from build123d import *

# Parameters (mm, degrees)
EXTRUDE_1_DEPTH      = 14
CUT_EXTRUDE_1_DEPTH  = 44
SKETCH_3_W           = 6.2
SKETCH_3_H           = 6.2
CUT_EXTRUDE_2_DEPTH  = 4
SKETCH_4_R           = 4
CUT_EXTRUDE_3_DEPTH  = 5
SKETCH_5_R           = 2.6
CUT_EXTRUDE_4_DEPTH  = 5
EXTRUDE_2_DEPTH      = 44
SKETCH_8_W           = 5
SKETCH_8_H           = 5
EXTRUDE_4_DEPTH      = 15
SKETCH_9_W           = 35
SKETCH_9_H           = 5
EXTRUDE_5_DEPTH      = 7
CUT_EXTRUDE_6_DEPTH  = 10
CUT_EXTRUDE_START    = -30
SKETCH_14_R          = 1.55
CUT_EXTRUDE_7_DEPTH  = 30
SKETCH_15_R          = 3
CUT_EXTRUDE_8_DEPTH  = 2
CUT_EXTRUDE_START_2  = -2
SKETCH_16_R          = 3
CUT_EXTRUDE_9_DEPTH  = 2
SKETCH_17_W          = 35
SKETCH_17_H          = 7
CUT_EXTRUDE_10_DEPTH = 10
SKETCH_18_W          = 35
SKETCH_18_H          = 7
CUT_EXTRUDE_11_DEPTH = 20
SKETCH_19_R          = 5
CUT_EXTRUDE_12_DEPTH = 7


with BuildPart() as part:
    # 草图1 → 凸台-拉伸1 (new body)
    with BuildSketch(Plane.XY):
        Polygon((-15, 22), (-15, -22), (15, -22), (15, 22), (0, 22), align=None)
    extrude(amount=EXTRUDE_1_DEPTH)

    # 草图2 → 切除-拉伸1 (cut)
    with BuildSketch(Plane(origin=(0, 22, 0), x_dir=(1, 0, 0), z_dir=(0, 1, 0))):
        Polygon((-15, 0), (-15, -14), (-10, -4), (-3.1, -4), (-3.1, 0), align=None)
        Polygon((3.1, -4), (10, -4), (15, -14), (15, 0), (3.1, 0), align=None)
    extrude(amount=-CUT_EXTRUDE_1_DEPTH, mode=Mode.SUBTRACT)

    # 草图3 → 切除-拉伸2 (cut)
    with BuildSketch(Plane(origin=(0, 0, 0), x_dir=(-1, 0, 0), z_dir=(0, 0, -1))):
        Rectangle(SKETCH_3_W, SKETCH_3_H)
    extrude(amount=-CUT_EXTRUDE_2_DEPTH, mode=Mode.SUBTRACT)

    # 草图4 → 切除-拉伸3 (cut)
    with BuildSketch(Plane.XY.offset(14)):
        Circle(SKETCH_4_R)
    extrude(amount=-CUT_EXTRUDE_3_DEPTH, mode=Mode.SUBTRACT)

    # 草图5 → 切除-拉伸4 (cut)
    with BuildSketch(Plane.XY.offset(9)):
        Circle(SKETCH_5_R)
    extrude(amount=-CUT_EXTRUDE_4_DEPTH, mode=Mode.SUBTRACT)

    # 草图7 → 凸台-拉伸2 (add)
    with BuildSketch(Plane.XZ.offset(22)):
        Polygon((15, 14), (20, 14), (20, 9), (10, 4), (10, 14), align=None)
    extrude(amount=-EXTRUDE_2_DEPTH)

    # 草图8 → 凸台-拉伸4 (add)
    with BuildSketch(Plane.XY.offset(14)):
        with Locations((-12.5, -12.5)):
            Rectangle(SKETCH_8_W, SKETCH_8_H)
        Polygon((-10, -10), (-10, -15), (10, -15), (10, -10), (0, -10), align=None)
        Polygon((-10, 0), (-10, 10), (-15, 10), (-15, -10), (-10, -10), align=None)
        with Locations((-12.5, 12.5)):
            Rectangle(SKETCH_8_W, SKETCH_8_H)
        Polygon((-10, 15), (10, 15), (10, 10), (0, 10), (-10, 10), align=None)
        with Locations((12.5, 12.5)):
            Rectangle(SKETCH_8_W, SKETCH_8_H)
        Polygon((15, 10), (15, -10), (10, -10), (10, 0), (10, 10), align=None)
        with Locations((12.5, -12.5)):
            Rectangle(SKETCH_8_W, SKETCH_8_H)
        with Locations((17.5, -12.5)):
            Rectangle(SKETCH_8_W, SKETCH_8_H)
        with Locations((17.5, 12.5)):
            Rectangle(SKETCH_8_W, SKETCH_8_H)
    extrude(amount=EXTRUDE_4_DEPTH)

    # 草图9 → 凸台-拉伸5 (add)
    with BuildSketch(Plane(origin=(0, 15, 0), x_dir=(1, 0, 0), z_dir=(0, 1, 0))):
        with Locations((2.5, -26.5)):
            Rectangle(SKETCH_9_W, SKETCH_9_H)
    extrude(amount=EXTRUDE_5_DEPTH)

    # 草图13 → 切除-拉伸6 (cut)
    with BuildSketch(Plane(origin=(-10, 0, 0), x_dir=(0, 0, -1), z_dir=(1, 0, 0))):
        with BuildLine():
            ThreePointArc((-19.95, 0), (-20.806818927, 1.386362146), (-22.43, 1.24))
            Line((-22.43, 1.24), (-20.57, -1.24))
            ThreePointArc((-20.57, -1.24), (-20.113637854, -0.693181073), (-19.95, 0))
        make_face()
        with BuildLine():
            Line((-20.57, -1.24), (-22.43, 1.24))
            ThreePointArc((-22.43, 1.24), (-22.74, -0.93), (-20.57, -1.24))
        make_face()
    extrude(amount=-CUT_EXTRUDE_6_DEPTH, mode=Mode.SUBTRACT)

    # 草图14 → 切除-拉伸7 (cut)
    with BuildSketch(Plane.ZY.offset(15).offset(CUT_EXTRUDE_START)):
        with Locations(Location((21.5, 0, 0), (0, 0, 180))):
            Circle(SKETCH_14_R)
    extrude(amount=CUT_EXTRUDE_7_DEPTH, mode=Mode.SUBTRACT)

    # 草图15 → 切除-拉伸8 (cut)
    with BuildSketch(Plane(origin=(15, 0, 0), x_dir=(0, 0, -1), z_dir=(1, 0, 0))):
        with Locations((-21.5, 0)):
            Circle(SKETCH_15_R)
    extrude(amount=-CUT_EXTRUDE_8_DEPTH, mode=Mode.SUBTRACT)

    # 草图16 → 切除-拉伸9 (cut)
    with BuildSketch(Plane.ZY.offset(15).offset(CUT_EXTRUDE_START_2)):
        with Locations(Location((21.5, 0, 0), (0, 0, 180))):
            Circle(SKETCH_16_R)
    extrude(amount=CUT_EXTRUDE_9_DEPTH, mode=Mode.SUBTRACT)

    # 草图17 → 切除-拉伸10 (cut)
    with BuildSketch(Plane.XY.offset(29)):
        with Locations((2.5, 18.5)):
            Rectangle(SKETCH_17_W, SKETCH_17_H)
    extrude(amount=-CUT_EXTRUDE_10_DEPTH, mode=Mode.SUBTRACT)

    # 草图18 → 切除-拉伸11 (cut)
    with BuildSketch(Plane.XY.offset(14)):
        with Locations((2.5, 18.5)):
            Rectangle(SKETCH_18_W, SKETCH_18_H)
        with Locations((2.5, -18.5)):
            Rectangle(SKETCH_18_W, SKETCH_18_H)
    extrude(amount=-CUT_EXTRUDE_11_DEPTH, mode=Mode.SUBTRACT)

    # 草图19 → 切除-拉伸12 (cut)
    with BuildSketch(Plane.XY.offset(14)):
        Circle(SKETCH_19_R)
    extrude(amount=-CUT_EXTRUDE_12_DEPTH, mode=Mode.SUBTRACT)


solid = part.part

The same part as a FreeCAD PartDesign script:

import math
import FreeCAD as App
import Part
import Sketcher
from FreeCAD import Vector

doc = App.newDocument("Part")
body = doc.addObject("PartDesign::Body", "Body")

sketch1 = body.newObject("Sketcher::SketchObject", "Sketch")
sketch1.AttachmentSupport = (doc.getObject("XY_Plane"), [""])
sketch1.MapMode = "FlatFace"
sketch1.addGeometry(Part.LineSegment(Vector(-15, 22, 0), Vector(-15, -22, 0)), False)
sketch1.addGeometry(Part.LineSegment(Vector(-15, -22, 0), Vector(15, -22, 0)), False)
sketch1.addGeometry(Part.LineSegment(Vector(15, -22, 0), Vector(15, 22, 0)), False)
sketch1.addGeometry(Part.LineSegment(Vector(15, 22, 0), Vector(-15, 22, 0)), False)
sketch1.addConstraint(Sketcher.Constraint("Coincident", 0, 2, 1, 1))
sketch1.addConstraint(Sketcher.Constraint("Coincident", 1, 2, 2, 1))
sketch1.addConstraint(Sketcher.Constraint("Coincident", 2, 2, 3, 1))
sketch1.addConstraint(Sketcher.Constraint("Coincident", 3, 2, 0, 1))
sketch1.addConstraint(Sketcher.Constraint("Vertical", 0))
sketch1.addConstraint(Sketcher.Constraint("Horizontal", 1))
sketch1.addConstraint(Sketcher.Constraint("Vertical", 2))
sketch1.addConstraint(Sketcher.Constraint("Horizontal", 3))
sketch1.addConstraint(Sketcher.Constraint("Symmetric", 0, 2, 2, 2, -1, 1))
sketch1.addConstraint(Sketcher.Constraint("DistanceX", 1, 1, 1, 2, 30.0))
sketch1.addConstraint(Sketcher.Constraint("DistanceY", 0, 2, 0, 1, 44.0))
pad1 = body.newObject("PartDesign::Pad", "Pad")
pad1.Profile = sketch1
pad1.Length = 14

sketch2 = body.newObject("Sketcher::SketchObject", "Sketch001")
sketch2.AttachmentSupport = (doc.getObject("XZ_Plane"), [""])
sketch2.MapMode = "FlatFace"
sketch2.AttachmentOffset = App.Placement(Vector(0, 0, -22), App.Rotation())
sketch2.addGeometry(Part.LineSegment(Vector(-15, 0, 0), Vector(-15, 14, 0)), False)
sketch2.addGeometry(Part.LineSegment(Vector(-15, 14, 0), Vector(-10, 4, 0)), False)
sketch2.addGeometry(Part.LineSegment(Vector(-10, 4, 0), Vector(-3.1, 4, 0)), False)
sketch2.addGeometry(Part.LineSegment(Vector(-3.1, 4, 0), Vector(-3.1, 0, 0)), False)
sketch2.addGeometry(Part.LineSegment(Vector(-3.1, 0, 0), Vector(-15, 0, 0)), False)
sketch2.addGeometry(Part.LineSegment(Vector(3.1, 4, 0), Vector(10, 4, 0)), False)
sketch2.addGeometry(Part.LineSegment(Vector(10, 4, 0), Vector(15, 14, 0)), False)
sketch2.addGeometry(Part.LineSegment(Vector(15, 14, 0), Vector(15, 0, 0)), False)
sketch2.addGeometry(Part.LineSegment(Vector(15, 0, 0), Vector(3.1, 0, 0)), False)
sketch2.addGeometry(Part.LineSegment(Vector(3.1, 0, 0), Vector(3.1, 4, 0)), False)
sketch2.addConstraint(Sketcher.Constraint("Coincident", 0, 2, 1, 1))
sketch2.addConstraint(Sketcher.Constraint("Coincident", 1, 2, 2, 1))
sketch2.addConstraint(Sketcher.Constraint("Coincident", 2, 2, 3, 1))
sketch2.addConstraint(Sketcher.Constraint("Coincident", 3, 2, 4, 1))
sketch2.addConstraint(Sketcher.Constraint("Coincident", 4, 2, 0, 1))
sketch2.addConstraint(Sketcher.Constraint("Coincident", 5, 2, 6, 1))
sketch2.addConstraint(Sketcher.Constraint("Coincident", 6, 2, 7, 1))
sketch2.addConstraint(Sketcher.Constraint("Coincident", 7, 2, 8, 1))
sketch2.addConstraint(Sketcher.Constraint("Coincident", 8, 2, 9, 1))
sketch2.addConstraint(Sketcher.Constraint("Coincident", 9, 2, 5, 1))
sketch2.addConstraint(Sketcher.Constraint("Vertical", 0))
sketch2.addConstraint(Sketcher.Constraint("Horizontal", 2))
sketch2.addConstraint(Sketcher.Constraint("Vertical", 3))
sketch2.addConstraint(Sketcher.Constraint("Horizontal", 4))
sketch2.addConstraint(Sketcher.Constraint("Horizontal", 5))
sketch2.addConstraint(Sketcher.Constraint("Vertical", 7))
sketch2.addConstraint(Sketcher.Constraint("Horizontal", 8))
sketch2.addConstraint(Sketcher.Constraint("Vertical", 9))
sketch2.addConstraint(Sketcher.Constraint("Symmetric", 4, 2, 7, 2, -1, 1))
sketch2.addConstraint(Sketcher.Constraint("Symmetric", 1, 2, 5, 2, -2))
sketch2.addConstraint(Sketcher.Constraint("Symmetric", 3, 2, 8, 2, -2))
sketch2.addConstraint(Sketcher.Constraint("Horizontal", 0, 2, 6, 2))
sketch2.addConstraint(Sketcher.Constraint("DistanceY", 0, 1, 0, 2, 14.0))
sketch2.addConstraint(Sketcher.Constraint("DistanceY", 3, 2, 3, 1, 4.0))
sketch2.addConstraint(Sketcher.Constraint("DistanceX", 2, 1, 2, 2, 6.9))
sketch2.addConstraint(Sketcher.Constraint("DistanceX", 4, 2, 4, 1, 11.9))
sketch2.addConstraint(Sketcher.Constraint("DistanceX", 0, 2, -1, 1, 15.0))
pocket1 = body.newObject("PartDesign::Pocket", "Pocket")
pocket1.Profile = sketch2
pocket1.Length = 44
pocket1.Reversed = True

sketch3 = body.newObject("Sketcher::SketchObject", "Sketch002")
sketch3.AttachmentSupport = (doc.getObject("XY_Plane"), [""])
sketch3.MapMode = "FlatFace"
sketch3.addGeometry(Part.LineSegment(Vector(3, 3, 0), Vector(3, -3, 0)), False)
sketch3.addGeometry(Part.LineSegment(Vector(3, -3, 0), Vector(-3, -3, 0)), False)
sketch3.addGeometry(Part.LineSegment(Vector(-3, -3, 0), Vector(-3, 3, 0)), False)
sketch3.addGeometry(Part.LineSegment(Vector(-3, 3, 0), Vector(3, 3, 0)), False)
sketch3.addConstraint(Sketcher.Constraint("Coincident", 0, 2, 1, 1))
sketch3.addConstraint(Sketcher.Constraint("Coincident", 1, 2, 2, 1))
sketch3.addConstraint(Sketcher.Constraint("Coincident", 2, 2, 3, 1))
sketch3.addConstraint(Sketcher.Constraint("Coincident", 3, 2, 0, 1))
sketch3.addConstraint(Sketcher.Constraint("Vertical", 0))
sketch3.addConstraint(Sketcher.Constraint("Horizontal", 1))
sketch3.addConstraint(Sketcher.Constraint("Vertical", 2))
sketch3.addConstraint(Sketcher.Constraint("Horizontal", 3))
sketch3.addConstraint(Sketcher.Constraint("Symmetric", 0, 2, 2, 2, -1, 1))
sketch3.addConstraint(Sketcher.Constraint("Equal", 3, 0))
sketch3.addConstraint(Sketcher.Constraint("DistanceX", 1, 2, 1, 1, 6.2))
pocket2 = body.newObject("PartDesign::Pocket", "Pocket001")
pocket2.Profile = sketch3
pocket2.Length = 4
pocket2.Reversed = True

sketch4 = body.newObject("Sketcher::SketchObject", "Sketch003")
sketch4.AttachmentSupport = (doc.getObject("XY_Plane"), [""])
sketch4.MapMode = "FlatFace"
sketch4.AttachmentOffset = App.Placement(Vector(0, 0, 14), App.Rotation())
sketch4.addGeometry(Part.Circle(Vector(0, 0, 0), Vector(0, 0, 1), 4), False)
sketch4.addConstraint(Sketcher.Constraint("Coincident", 0, 3, -1, 1))
sketch4.addConstraint(Sketcher.Constraint("Diameter", 0, 8.0))
pocket3 = body.newObject("PartDesign::Pocket", "Pocket002")
pocket3.Profile = sketch4
pocket3.Length = 5

sketch5 = body.newObject("Sketcher::SketchObject", "Sketch004")
sketch5.AttachmentSupport = (doc.getObject("XY_Plane"), [""])
sketch5.MapMode = "FlatFace"
sketch5.AttachmentOffset = App.Placement(Vector(0, 0, 9), App.Rotation())
sketch5.addGeometry(Part.Circle(Vector(0, 0, 0), Vector(0, 0, 1), 2.6), False)
sketch5.addConstraint(Sketcher.Constraint("Coincident", 0, 3, -1, 1))
sketch5.addConstraint(Sketcher.Constraint("Diameter", 0, 5.2))
pocket4 = body.newObject("PartDesign::Pocket", "Pocket003")
pocket4.Profile = sketch5
pocket4.Length = 5

sketch6 = body.newObject("Sketcher::SketchObject", "Sketch005")
sketch6.AttachmentSupport = (doc.getObject("XZ_Plane"), [""])
sketch6.MapMode = "FlatFace"
sketch6.AttachmentOffset = App.Placement(Vector(0, 0, 22), App.Rotation())
sketch6.addGeometry(Part.LineSegment(Vector(20, 14, 0), Vector(10, 14, 0)), False)
sketch6.addGeometry(Part.LineSegment(Vector(10, 14, 0), Vector(10, 4, 0)), False)
sketch6.addGeometry(Part.LineSegment(Vector(10, 4, 0), Vector(20, 9, 0)), False)
sketch6.addGeometry(Part.LineSegment(Vector(20, 9, 0), Vector(20, 14, 0)), False)
sketch6.addConstraint(Sketcher.Constraint("Coincident", 0, 2, 1, 1))
sketch6.addConstraint(Sketcher.Constraint("Coincident", 1, 2, 2, 1))
sketch6.addConstraint(Sketcher.Constraint("Coincident", 2, 2, 3, 1))
sketch6.addConstraint(Sketcher.Constraint("Coincident", 3, 2, 0, 1))
sketch6.addConstraint(Sketcher.Constraint("Horizontal", 0))
sketch6.addConstraint(Sketcher.Constraint("Vertical", 1))
sketch6.addConstraint(Sketcher.Constraint("Vertical", 3))
sketch6.addConstraint(Sketcher.Constraint("Equal", 0, 1))
sketch6.addConstraint(Sketcher.Constraint("DistanceX", 0, 2, 0, 1, 10.0))
sketch6.addConstraint(Sketcher.Constraint("DistanceY", 3, 1, 3, 2, 5.0))
sketch6.addConstraint(Sketcher.Constraint("DistanceX", -1, 1, 0, 2, 10.0))
sketch6.addConstraint(Sketcher.Constraint("DistanceY", -1, 1, 0, 2, 14.0))
pad2 = body.newObject("PartDesign::Pad", "Pad001")
pad2.Profile = sketch6
pad2.Length = 44
pad2.Reversed = True

sketch7 = body.newObject("Sketcher::SketchObject", "Sketch006")
sketch7.AttachmentSupport = (doc.getObject("XY_Plane"), [""])
sketch7.MapMode = "FlatFace"
sketch7.AttachmentOffset = App.Placement(Vector(0, 0, 14), App.Rotation())
sketch7.addGeometry(Part.LineSegment(Vector(-15, -15, 0), Vector(20, -15, 0)), False)
sketch7.addGeometry(Part.LineSegment(Vector(20, -15, 0), Vector(20, -10, 0)), False)
sketch7.addGeometry(Part.LineSegment(Vector(20, -10, 0), Vector(15, -10, 0)), False)
sketch7.addGeometry(Part.LineSegment(Vector(15, -10, 0), Vector(15, 10, 0)), False)
sketch7.addGeometry(Part.LineSegment(Vector(15, 10, 0), Vector(20, 10, 0)), False)
sketch7.addGeometry(Part.LineSegment(Vector(20, 10, 0), Vector(20, 15, 0)), False)
sketch7.addGeometry(Part.LineSegment(Vector(20, 15, 0), Vector(-15, 15, 0)), False)
sketch7.addGeometry(Part.LineSegment(Vector(-15, 15, 0), Vector(-15, -15, 0)), False)
sketch7.addGeometry(Part.LineSegment(Vector(10, 10, 0), Vector(10, -10, 0)), False)
sketch7.addGeometry(Part.LineSegment(Vector(10, -10, 0), Vector(-10, -10, 0)), False)
sketch7.addGeometry(Part.LineSegment(Vector(-10, -10, 0), Vector(-10, 10, 0)), False)
sketch7.addGeometry(Part.LineSegment(Vector(-10, 10, 0), Vector(10, 10, 0)), False)
sketch7.addConstraint(Sketcher.Constraint("Coincident", 0, 2, 1, 1))
sketch7.addConstraint(Sketcher.Constraint("Coincident", 1, 2, 2, 1))
sketch7.addConstraint(Sketcher.Constraint("Coincident", 2, 2, 3, 1))
sketch7.addConstraint(Sketcher.Constraint("Coincident", 3, 2, 4, 1))
sketch7.addConstraint(Sketcher.Constraint("Coincident", 4, 2, 5, 1))
sketch7.addConstraint(Sketcher.Constraint("Coincident", 5, 2, 6, 1))
sketch7.addConstraint(Sketcher.Constraint("Coincident", 6, 2, 7, 1))
sketch7.addConstraint(Sketcher.Constraint("Coincident", 7, 2, 0, 1))
sketch7.addConstraint(Sketcher.Constraint("Coincident", 8, 2, 9, 1))
sketch7.addConstraint(Sketcher.Constraint("Coincident", 9, 2, 10, 1))
sketch7.addConstraint(Sketcher.Constraint("Coincident", 10, 2, 11, 1))
sketch7.addConstraint(Sketcher.Constraint("Coincident", 11, 2, 8, 1))
sketch7.addConstraint(Sketcher.Constraint("Horizontal", 0))
sketch7.addConstraint(Sketcher.Constraint("Vertical", 1))
sketch7.addConstraint(Sketcher.Constraint("Horizontal", 2))
sketch7.addConstraint(Sketcher.Constraint("Vertical", 3))
sketch7.addConstraint(Sketcher.Constraint("Horizontal", 4))
sketch7.addConstraint(Sketcher.Constraint("Vertical", 5))
sketch7.addConstraint(Sketcher.Constraint("Horizontal", 6))
sketch7.addConstraint(Sketcher.Constraint("Vertical", 7))
sketch7.addConstraint(Sketcher.Constraint("Vertical", 8))
sketch7.addConstraint(Sketcher.Constraint("Horizontal", 9))
sketch7.addConstraint(Sketcher.Constraint("Vertical", 10))
sketch7.addConstraint(Sketcher.Constraint("Horizontal", 11))
sketch7.addConstraint(Sketcher.Constraint("Symmetric", 8, 2, 10, 2, -1, 1))
sketch7.addConstraint(Sketcher.Constraint("Symmetric", 1, 2, 4, 2, -1))
sketch7.addConstraint(Sketcher.Constraint("Horizontal", 2, 2, 8, 2))
sketch7.addConstraint(Sketcher.Constraint("Equal", 4, 1))
sketch7.addConstraint(Sketcher.Constraint("Equal", 11, 3))
sketch7.addConstraint(Sketcher.Constraint("Equal", 1, 5))
sketch7.addConstraint(Sketcher.Constraint("DistanceX", 0, 1, 0, 2, 35.0))
sketch7.addConstraint(Sketcher.Constraint("DistanceX", 2, 2, 2, 1, 5.0))
sketch7.addConstraint(Sketcher.Constraint("DistanceX", 9, 2, 9, 1, 20.0))
sketch7.addConstraint(Sketcher.Constraint("DistanceX", -1, 1, 0, 2, 20.0))
pad3 = body.newObject("PartDesign::Pad", "Pad002")
pad3.Profile = sketch7
pad3.Length = 15

sketch8 = body.newObject("Sketcher::SketchObject", "Sketch007")
sketch8.AttachmentSupport = (doc.getObject("XZ_Plane"), [""])
sketch8.MapMode = "FlatFace"
sketch8.AttachmentOffset = App.Placement(Vector(0, 0, -15), App.Rotation())
sketch8.addGeometry(Part.LineSegment(Vector(-15, 24, 0), Vector(-15, 29, 0)), False)
sketch8.addGeometry(Part.LineSegment(Vector(-15, 29, 0), Vector(20, 29, 0)), False)
sketch8.addGeometry(Part.LineSegment(Vector(20, 29, 0), Vector(20, 24, 0)), False)
sketch8.addGeometry(Part.LineSegment(Vector(20, 24, 0), Vector(-15, 24, 0)), False)
sketch8.addConstraint(Sketcher.Constraint("Coincident", 0, 2, 1, 1))
sketch8.addConstraint(Sketcher.Constraint("Coincident", 1, 2, 2, 1))
sketch8.addConstraint(Sketcher.Constraint("Coincident", 2, 2, 3, 1))
sketch8.addConstraint(Sketcher.Constraint("Coincident", 3, 2, 0, 1))
sketch8.addConstraint(Sketcher.Constraint("Vertical", 0))
sketch8.addConstraint(Sketcher.Constraint("Horizontal", 1))
sketch8.addConstraint(Sketcher.Constraint("Vertical", 2))
sketch8.addConstraint(Sketcher.Constraint("Horizontal", 3))
sketch8.addConstraint(Sketcher.Constraint("DistanceX", 1, 1, 1, 2, 35.0))
sketch8.addConstraint(Sketcher.Constraint("DistanceY", 0, 1, 0, 2, 5.0))
sketch8.addConstraint(Sketcher.Constraint("DistanceX", 0, 2, -1, 1, 15.0))
sketch8.addConstraint(Sketcher.Constraint("DistanceY", -1, 1, 0, 2, 29.0))
pad4 = body.newObject("PartDesign::Pad", "Pad003")
pad4.Profile = sketch8
pad4.Length = 7
pad4.Reversed = True

sketch9 = body.newObject("Sketcher::SketchObject", "Sketch008")
sketch9.AttachmentSupport = (doc.getObject("YZ_Plane"), [""])
sketch9.MapMode = "FlatFace"
sketch9.AttachmentOffset = App.Placement(Vector(0, 0, -10), App.Rotation())
sketch9.addGeometry(Part.ArcOfCircle(Part.Circle(Vector(0, 21.5, 0), Vector(0, 0, 1), 1.6), math.radians(-90), math.radians(37)), False)
sketch9.addGeometry(Part.ArcOfCircle(Part.Circle(Vector(0, 21.5, 0), Vector(0, 0, 1), 1.6), math.radians(37), math.radians(217)), False)
sketch9.addGeometry(Part.ArcOfCircle(Part.Circle(Vector(0, 21.5, 0), Vector(0, 0, 1), 1.6), math.radians(-143), math.radians(-90)), False)
sketch9.addConstraint(Sketcher.Constraint("Tangent", 0, 2, 1, 1))
sketch9.addConstraint(Sketcher.Constraint("Tangent", 1, 2, 2, 1))
sketch9.addConstraint(Sketcher.Constraint("Tangent", 2, 2, 0, 1))
sketch9.addConstraint(Sketcher.Constraint("PointOnObject", 0, 3, -2))
sketch9.addConstraint(Sketcher.Constraint("PointOnObject", 2, 2, -2))
sketch9.addConstraint(Sketcher.Constraint("Radius", 0, 1.55))
sketch9.addConstraint(Sketcher.Constraint("DistanceY", -1, 1, 0, 3, 21.5))
sketch9.addConstraint(Sketcher.Constraint("DistanceX", -1, 1, 0, 2, 1.24))
sketch9.addConstraint(Sketcher.Constraint("DistanceX", 1, 2, -1, 1, 1.24))
pocket5 = body.newObject("PartDesign::Pocket", "Pocket004")
pocket5.Profile = sketch9
pocket5.Length = 10

sketch10 = body.newObject("Sketcher::SketchObject", "Sketch009")
sketch10.AttachmentSupport = (doc.getObject("YZ_Plane"), [""])
sketch10.MapMode = "FlatFace"
sketch10.AttachmentOffset = App.Placement(Vector(0, 0, 15), App.Rotation())
sketch10.addGeometry(Part.Circle(Vector(0, 21.5, 0), Vector(0, 0, 1), 1.6), False)
sketch10.addConstraint(Sketcher.Constraint("PointOnObject", 0, 3, -2))
sketch10.addConstraint(Sketcher.Constraint("Diameter", 0, 3.1))
sketch10.addConstraint(Sketcher.Constraint("DistanceY", -1, 1, 0, 3, 21.5))
pocket6 = body.newObject("PartDesign::Pocket", "Pocket005")
pocket6.Profile = sketch10
pocket6.Length = 30

sketch11 = body.newObject("Sketcher::SketchObject", "Sketch010")
sketch11.AttachmentSupport = (doc.getObject("YZ_Plane"), [""])
sketch11.MapMode = "FlatFace"
sketch11.AttachmentOffset = App.Placement(Vector(0, 0, 15), App.Rotation())
sketch11.addGeometry(Part.Circle(Vector(0, 21.5, 0), Vector(0, 0, 1), 3), False)
sketch11.addConstraint(Sketcher.Constraint("PointOnObject", 0, 3, -2))
sketch11.addConstraint(Sketcher.Constraint("Diameter", 0, 6.0))
sketch11.addConstraint(Sketcher.Constraint("DistanceY", -1, 1, 0, 3, 21.5))
pocket7 = body.newObject("PartDesign::Pocket", "Pocket006")
pocket7.Profile = sketch11
pocket7.Length = 2

sketch12 = body.newObject("Sketcher::SketchObject", "Sketch011")
sketch12.AttachmentSupport = (doc.getObject("YZ_Plane"), [""])
sketch12.MapMode = "FlatFace"
sketch12.AttachmentOffset = App.Placement(Vector(0, 0, -13), App.Rotation())
sketch12.addGeometry(Part.Circle(Vector(0, 21.5, 0), Vector(0, 0, 1), 3), False)
sketch12.addConstraint(Sketcher.Constraint("PointOnObject", 0, 3, -2))
sketch12.addConstraint(Sketcher.Constraint("Diameter", 0, 6.0))
sketch12.addConstraint(Sketcher.Constraint("DistanceY", -1, 1, 0, 3, 21.5))
pocket8 = body.newObject("PartDesign::Pocket", "Pocket007")
pocket8.Profile = sketch12
pocket8.Length = 2

sketch13 = body.newObject("Sketcher::SketchObject", "Sketch012")
sketch13.AttachmentSupport = (doc.getObject("XY_Plane"), [""])
sketch13.MapMode = "FlatFace"
sketch13.AttachmentOffset = App.Placement(Vector(0, 0, 29), App.Rotation())
sketch13.addGeometry(Part.LineSegment(Vector(-15, 22, 0), Vector(-15, 15, 0)), False)
sketch13.addGeometry(Part.LineSegment(Vector(-15, 15, 0), Vector(20, 15, 0)), False)
sketch13.addGeometry(Part.LineSegment(Vector(20, 15, 0), Vector(20, 22, 0)), False)
sketch13.addGeometry(Part.LineSegment(Vector(20, 22, 0), Vector(-15, 22, 0)), False)
sketch13.addConstraint(Sketcher.Constraint("Coincident", 0, 2, 1, 1))
sketch13.addConstraint(Sketcher.Constraint("Coincident", 1, 2, 2, 1))
sketch13.addConstraint(Sketcher.Constraint("Coincident", 2, 2, 3, 1))
sketch13.addConstraint(Sketcher.Constraint("Coincident", 3, 2, 0, 1))
sketch13.addConstraint(Sketcher.Constraint("Vertical", 0))
sketch13.addConstraint(Sketcher.Constraint("Horizontal", 1))
sketch13.addConstraint(Sketcher.Constraint("Vertical", 2))
sketch13.addConstraint(Sketcher.Constraint("Horizontal", 3))
sketch13.addConstraint(Sketcher.Constraint("DistanceX", 1, 1, 1, 2, 35.0))
sketch13.addConstraint(Sketcher.Constraint("DistanceY", 0, 2, 0, 1, 7.0))
sketch13.addConstraint(Sketcher.Constraint("DistanceX", 0, 2, -1, 1, 15.0))
sketch13.addConstraint(Sketcher.Constraint("DistanceY", -1, 1, 0, 2, 15.0))
pocket9 = body.newObject("PartDesign::Pocket", "Pocket008")
pocket9.Profile = sketch13
pocket9.Length = 10

sketch14 = body.newObject("Sketcher::SketchObject", "Sketch013")
sketch14.AttachmentSupport = (doc.getObject("XY_Plane"), [""])
sketch14.MapMode = "FlatFace"
sketch14.AttachmentOffset = App.Placement(Vector(0, 0, 14), App.Rotation())
sketch14.addGeometry(Part.LineSegment(Vector(-15, 22, 0), Vector(-15, 15, 0)), False)
sketch14.addGeometry(Part.LineSegment(Vector(-15, 15, 0), Vector(20, 15, 0)), False)
sketch14.addGeometry(Part.LineSegment(Vector(20, 15, 0), Vector(20, 22, 0)), False)
sketch14.addGeometry(Part.LineSegment(Vector(20, 22, 0), Vector(-15, 22, 0)), False)
sketch14.addGeometry(Part.LineSegment(Vector(-15, -15, 0), Vector(-15, -22, 0)), False)
sketch14.addGeometry(Part.LineSegment(Vector(-15, -22, 0), Vector(20, -22, 0)), False)
sketch14.addGeometry(Part.LineSegment(Vector(20, -22, 0), Vector(20, -15, 0)), False)
sketch14.addGeometry(Part.LineSegment(Vector(20, -15, 0), Vector(-15, -15, 0)), False)
sketch14.addConstraint(Sketcher.Constraint("Coincident", 0, 2, 1, 1))
sketch14.addConstraint(Sketcher.Constraint("Coincident", 1, 2, 2, 1))
sketch14.addConstraint(Sketcher.Constraint("Coincident", 2, 2, 3, 1))
sketch14.addConstraint(Sketcher.Constraint("Coincident", 3, 2, 0, 1))
sketch14.addConstraint(Sketcher.Constraint("Coincident", 4, 2, 5, 1))
sketch14.addConstraint(Sketcher.Constraint("Coincident", 5, 2, 6, 1))
sketch14.addConstraint(Sketcher.Constraint("Coincident", 6, 2, 7, 1))
sketch14.addConstraint(Sketcher.Constraint("Coincident", 7, 2, 4, 1))
sketch14.addConstraint(Sketcher.Constraint("Vertical", 0))
sketch14.addConstraint(Sketcher.Constraint("Horizontal", 1))
sketch14.addConstraint(Sketcher.Constraint("Vertical", 2))
sketch14.addConstraint(Sketcher.Constraint("Horizontal", 3))
sketch14.addConstraint(Sketcher.Constraint("Vertical", 4))
sketch14.addConstraint(Sketcher.Constraint("Horizontal", 5))
sketch14.addConstraint(Sketcher.Constraint("Vertical", 6))
sketch14.addConstraint(Sketcher.Constraint("Horizontal", 7))
sketch14.addConstraint(Sketcher.Constraint("Symmetric", 3, 2, 4, 2, -1))
sketch14.addConstraint(Sketcher.Constraint("Symmetric", 1, 2, 6, 2, -1))
sketch14.addConstraint(Sketcher.Constraint("DistanceX", 1, 1, 1, 2, 35.0))
sketch14.addConstraint(Sketcher.Constraint("DistanceY", 0, 2, 0, 1, 7.0))
sketch14.addConstraint(Sketcher.Constraint("DistanceX", 0, 2, -1, 1, 15.0))
sketch14.addConstraint(Sketcher.Constraint("DistanceY", -1, 1, 0, 2, 15.0))
pocket10 = body.newObject("PartDesign::Pocket", "Pocket009")
pocket10.Profile = sketch14
pocket10.Length = 20

sketch15 = body.newObject("Sketcher::SketchObject", "Sketch014")
sketch15.AttachmentSupport = (doc.getObject("XY_Plane"), [""])
sketch15.MapMode = "FlatFace"
sketch15.AttachmentOffset = App.Placement(Vector(0, 0, 14), App.Rotation())
sketch15.addGeometry(Part.Circle(Vector(0, 0, 0), Vector(0, 0, 1), 5), False)
sketch15.addConstraint(Sketcher.Constraint("Coincident", 0, 3, -1, 1))
sketch15.addConstraint(Sketcher.Constraint("Diameter", 0, 10.0))
pocket11 = body.newObject("PartDesign::Pocket", "Pocket010")
pocket11.Profile = sketch15
pocket11.Length = 7

doc.recompute()
